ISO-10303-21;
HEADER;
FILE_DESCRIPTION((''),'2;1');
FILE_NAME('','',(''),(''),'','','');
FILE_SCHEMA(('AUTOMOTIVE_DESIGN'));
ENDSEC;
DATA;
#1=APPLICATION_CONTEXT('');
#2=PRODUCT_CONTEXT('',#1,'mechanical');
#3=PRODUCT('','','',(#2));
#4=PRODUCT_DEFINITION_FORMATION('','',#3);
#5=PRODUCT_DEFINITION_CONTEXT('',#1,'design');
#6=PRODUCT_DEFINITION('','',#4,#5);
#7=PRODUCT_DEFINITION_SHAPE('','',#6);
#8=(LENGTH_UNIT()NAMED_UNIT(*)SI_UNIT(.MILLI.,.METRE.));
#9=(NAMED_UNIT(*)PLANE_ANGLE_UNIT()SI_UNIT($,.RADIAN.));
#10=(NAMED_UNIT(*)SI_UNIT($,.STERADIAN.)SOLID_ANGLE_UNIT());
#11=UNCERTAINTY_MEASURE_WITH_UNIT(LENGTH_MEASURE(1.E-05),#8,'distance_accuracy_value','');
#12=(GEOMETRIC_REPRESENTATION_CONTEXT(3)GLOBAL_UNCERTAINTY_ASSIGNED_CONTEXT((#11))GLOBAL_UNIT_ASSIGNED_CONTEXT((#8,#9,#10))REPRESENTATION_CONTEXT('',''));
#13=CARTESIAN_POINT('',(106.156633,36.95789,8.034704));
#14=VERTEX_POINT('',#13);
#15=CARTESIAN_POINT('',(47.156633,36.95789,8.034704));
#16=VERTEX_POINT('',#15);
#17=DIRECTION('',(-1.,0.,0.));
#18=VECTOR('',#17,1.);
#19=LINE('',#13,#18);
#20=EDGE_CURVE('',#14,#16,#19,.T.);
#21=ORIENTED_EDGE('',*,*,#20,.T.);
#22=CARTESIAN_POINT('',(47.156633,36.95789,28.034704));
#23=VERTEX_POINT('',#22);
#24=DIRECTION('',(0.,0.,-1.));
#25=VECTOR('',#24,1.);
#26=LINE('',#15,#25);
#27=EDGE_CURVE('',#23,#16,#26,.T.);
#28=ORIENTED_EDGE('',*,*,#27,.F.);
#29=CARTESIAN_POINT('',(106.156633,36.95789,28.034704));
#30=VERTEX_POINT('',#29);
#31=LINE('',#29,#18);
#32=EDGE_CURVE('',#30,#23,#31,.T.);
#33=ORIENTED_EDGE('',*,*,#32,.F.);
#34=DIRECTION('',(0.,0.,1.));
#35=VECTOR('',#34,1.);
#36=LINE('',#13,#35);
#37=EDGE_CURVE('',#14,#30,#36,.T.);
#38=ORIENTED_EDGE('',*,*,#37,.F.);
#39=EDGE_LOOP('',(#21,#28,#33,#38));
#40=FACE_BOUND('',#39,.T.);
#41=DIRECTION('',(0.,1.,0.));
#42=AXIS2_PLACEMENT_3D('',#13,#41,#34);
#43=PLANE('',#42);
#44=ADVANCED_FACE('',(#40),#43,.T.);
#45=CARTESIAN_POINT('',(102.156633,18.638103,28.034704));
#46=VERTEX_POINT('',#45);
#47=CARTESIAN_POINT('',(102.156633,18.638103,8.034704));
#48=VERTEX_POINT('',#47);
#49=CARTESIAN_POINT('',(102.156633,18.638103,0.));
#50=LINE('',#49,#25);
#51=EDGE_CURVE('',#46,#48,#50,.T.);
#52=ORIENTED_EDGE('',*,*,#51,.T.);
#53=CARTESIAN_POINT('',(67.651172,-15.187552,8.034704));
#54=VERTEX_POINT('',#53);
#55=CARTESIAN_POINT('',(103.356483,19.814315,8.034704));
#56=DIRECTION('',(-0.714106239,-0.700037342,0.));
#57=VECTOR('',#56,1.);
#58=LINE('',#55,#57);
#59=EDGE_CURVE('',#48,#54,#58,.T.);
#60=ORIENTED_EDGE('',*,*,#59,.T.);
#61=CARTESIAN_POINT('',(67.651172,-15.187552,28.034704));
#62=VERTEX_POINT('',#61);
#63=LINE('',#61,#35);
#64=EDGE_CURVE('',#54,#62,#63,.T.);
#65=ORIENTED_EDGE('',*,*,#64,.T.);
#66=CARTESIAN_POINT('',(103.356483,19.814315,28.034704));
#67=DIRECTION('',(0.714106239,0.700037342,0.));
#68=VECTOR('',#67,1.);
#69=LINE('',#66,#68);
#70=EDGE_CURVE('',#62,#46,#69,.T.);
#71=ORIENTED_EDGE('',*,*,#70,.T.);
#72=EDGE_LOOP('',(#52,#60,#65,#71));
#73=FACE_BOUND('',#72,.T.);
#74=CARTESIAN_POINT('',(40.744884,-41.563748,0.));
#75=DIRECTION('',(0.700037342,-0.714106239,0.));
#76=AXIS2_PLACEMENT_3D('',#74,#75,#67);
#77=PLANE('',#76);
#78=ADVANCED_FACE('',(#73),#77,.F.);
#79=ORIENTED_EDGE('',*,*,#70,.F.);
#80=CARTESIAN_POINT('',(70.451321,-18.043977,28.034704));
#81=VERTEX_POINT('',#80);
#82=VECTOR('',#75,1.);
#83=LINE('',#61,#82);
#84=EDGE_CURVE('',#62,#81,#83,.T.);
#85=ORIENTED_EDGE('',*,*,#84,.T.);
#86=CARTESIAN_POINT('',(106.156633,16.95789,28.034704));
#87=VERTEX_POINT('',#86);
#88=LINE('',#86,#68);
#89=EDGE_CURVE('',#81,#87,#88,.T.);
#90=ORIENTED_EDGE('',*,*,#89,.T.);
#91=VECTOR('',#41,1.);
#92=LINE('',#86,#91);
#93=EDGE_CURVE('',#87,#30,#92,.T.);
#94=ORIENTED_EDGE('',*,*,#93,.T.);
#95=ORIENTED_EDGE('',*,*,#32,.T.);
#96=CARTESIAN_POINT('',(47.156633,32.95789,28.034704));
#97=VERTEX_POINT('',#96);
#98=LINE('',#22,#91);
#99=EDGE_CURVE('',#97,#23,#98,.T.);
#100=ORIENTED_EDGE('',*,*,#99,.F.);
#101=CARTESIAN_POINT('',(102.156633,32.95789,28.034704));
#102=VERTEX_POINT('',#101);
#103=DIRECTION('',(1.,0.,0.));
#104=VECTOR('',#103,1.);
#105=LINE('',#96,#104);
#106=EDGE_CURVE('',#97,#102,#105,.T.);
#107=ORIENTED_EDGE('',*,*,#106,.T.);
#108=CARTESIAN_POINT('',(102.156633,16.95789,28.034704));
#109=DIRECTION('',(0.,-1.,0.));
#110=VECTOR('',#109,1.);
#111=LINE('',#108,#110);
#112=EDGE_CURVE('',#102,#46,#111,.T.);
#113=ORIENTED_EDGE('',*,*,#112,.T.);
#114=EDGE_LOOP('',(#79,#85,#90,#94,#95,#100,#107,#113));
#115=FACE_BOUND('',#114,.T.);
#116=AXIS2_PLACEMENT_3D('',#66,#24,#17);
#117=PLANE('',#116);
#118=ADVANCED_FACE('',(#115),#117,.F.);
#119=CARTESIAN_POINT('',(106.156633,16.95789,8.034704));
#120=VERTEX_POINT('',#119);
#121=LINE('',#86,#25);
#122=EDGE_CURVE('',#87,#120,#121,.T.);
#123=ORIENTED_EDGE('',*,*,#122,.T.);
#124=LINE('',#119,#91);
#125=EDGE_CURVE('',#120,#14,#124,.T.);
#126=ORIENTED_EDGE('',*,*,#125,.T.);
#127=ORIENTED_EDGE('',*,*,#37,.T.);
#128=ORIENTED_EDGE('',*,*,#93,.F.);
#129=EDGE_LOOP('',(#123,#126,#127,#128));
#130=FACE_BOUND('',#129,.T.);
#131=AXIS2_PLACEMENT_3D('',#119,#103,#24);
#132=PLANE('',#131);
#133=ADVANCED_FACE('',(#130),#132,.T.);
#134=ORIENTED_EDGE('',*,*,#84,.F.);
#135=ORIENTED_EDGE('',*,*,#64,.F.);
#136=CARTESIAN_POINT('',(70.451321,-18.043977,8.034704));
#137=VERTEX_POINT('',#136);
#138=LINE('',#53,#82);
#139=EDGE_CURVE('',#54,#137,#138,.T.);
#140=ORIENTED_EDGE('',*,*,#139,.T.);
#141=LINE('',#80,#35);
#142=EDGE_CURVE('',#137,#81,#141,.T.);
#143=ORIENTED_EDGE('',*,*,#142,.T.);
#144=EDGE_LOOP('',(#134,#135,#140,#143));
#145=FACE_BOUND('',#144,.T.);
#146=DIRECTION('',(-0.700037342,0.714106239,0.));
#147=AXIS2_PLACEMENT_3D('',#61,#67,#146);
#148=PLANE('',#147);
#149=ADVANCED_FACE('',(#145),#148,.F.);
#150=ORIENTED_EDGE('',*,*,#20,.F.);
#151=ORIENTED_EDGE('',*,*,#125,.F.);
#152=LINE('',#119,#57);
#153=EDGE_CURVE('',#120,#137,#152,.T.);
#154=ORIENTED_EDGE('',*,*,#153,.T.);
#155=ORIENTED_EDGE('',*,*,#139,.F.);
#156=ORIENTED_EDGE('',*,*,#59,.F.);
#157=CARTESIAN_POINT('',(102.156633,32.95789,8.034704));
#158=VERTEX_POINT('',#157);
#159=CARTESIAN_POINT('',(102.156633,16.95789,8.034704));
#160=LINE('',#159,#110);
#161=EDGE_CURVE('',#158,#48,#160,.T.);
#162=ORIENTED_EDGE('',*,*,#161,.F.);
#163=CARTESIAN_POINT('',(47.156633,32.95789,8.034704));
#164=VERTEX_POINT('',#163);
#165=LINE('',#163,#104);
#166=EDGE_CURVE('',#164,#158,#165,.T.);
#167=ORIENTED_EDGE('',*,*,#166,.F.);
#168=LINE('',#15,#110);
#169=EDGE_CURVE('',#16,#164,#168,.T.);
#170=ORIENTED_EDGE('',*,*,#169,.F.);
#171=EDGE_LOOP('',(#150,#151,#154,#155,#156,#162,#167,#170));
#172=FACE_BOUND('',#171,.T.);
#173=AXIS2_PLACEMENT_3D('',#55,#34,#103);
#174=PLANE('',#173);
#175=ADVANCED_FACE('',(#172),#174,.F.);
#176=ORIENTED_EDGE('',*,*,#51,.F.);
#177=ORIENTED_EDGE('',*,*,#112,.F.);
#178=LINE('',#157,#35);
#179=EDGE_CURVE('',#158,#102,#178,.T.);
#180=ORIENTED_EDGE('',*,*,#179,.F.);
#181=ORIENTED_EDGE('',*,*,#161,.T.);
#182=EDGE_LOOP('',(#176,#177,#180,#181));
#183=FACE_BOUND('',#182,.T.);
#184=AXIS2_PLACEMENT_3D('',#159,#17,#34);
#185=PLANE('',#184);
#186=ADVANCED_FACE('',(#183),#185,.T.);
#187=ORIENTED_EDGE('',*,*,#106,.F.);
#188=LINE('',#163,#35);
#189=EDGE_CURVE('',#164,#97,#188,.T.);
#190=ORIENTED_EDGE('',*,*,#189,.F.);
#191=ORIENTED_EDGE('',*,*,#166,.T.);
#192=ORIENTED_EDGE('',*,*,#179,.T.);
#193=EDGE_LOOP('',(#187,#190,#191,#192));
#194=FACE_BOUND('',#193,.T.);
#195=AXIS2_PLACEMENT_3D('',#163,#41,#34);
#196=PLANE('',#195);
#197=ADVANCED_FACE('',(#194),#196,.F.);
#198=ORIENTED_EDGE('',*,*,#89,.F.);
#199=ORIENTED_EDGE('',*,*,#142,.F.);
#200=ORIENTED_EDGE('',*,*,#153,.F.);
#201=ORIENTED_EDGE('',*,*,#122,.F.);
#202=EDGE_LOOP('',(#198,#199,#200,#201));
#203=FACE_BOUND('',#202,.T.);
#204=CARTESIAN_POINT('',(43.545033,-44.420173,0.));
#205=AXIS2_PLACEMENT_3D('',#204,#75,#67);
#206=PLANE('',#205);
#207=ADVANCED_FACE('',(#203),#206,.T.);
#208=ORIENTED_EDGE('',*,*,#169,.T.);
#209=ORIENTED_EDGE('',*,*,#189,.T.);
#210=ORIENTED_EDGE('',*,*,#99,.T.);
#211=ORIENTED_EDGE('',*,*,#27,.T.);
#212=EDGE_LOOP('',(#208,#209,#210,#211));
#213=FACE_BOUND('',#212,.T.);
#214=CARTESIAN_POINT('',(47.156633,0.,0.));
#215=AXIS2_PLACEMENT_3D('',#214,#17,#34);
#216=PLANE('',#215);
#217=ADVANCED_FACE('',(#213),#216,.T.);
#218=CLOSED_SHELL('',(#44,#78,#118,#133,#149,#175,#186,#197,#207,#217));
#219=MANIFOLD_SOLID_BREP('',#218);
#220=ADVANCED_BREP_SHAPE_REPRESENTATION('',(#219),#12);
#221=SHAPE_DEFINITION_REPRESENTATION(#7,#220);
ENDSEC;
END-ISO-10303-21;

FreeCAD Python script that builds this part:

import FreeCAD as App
import Part
import Sketcher
from FreeCAD import Vector


def add_polygon(sketch, points):
    """Adds a closed chain of lines whose ends are joined by coincident constraints."""
    first, n = sketch.GeometryCount, len(points)
    for a, b in zip(points, points[1:] + points[:1]):
        sketch.addGeometry(Part.LineSegment(App.Vector(*a, 0), App.Vector(*b, 0)), False)
    for i in range(n):
        sketch.addConstraint(Sketcher.Constraint("Coincident", first + i, 2, first + (i + 1) % n, 1))

doc = App.newDocument("Part")
body = doc.addObject("PartDesign::Body", "Body")

sketch1 = doc.addObject("Sketcher::SketchObject", "Sketch")
body.addObject(sketch1)
sketch1.Placement = App.Placement(Vector(43.545033, -44.420173, 0), App.Rotation(Vector(0, 0, 1), Vector(0.714106239, 0.700037342, 0), Vector(-0.700037342, 0.714106239, 0), "ZXY"))
add_polygon(sketch1, [(8, 88), (8, 38), (28, 38), (28, 88)])
sketch1.addConstraint(Sketcher.Constraint("Vertical", 0))
sketch1.addConstraint(Sketcher.Constraint("Horizontal", 1))
sketch1.addConstraint(Sketcher.Constraint("Vertical", 2))
sketch1.addConstraint(Sketcher.Constraint("Horizontal", 3))
sketch1.addConstraint(Sketcher.Constraint("DistanceX", 1, 1, 1, 2, 20.0))
sketch1.addConstraint(Sketcher.Constraint("DistanceY", 0, 2, 0, 1, 50.0))
sketch1.addConstraint(Sketcher.Constraint("DistanceY", -1, 1, 0, 2, 37.67827))
sketch1.addConstraint(Sketcher.Constraint("DistanceX", -1, 1, 0, 2, 8.034704))
pad1 = doc.addObject("PartDesign::Pad", "Pad")
body.addObject(pad1)
pad1.Profile = sketch1
pad1.Length = 4

sketch2 = doc.addObject("Sketcher::SketchObject", "Sketch001")
body.addObject(sketch2)
sketch2.AttachmentSupport = (doc.XY_Plane, [""])
sketch2.MapMode = "FlatFace"
sketch2.AttachmentOffset = App.Placement(Vector(0, 0, 28.034704), App.Rotation())
add_polygon(sketch2, [(102.2, 37), (102.2, 17), (106.2, 17), (106.2, 37)])
sketch2.addConstraint(Sketcher.Constraint("Vertical", 0))
sketch2.addConstraint(Sketcher.Constraint("Horizontal", 1))
sketch2.addConstraint(Sketcher.Constraint("Vertical", 2))
sketch2.addConstraint(Sketcher.Constraint("Horizontal", 3))
sketch2.addConstraint(Sketcher.Constraint("DistanceX", 1, 1, 1, 2, 4.0))
sketch2.addConstraint(Sketcher.Constraint("DistanceY", 0, 2, 0, 1, 20.0))
sketch2.addConstraint(Sketcher.Constraint("DistanceY", -1, 1, 0, 2, 16.95789))
sketch2.addConstraint(Sketcher.Constraint("DistanceX", -1, 1, 0, 2, 102.156633))
pad2 = doc.addObject("PartDesign::Pad", "Pad001")
body.addObject(pad2)
pad2.Profile = sketch2
pad2.Length = 20
pad2.Reversed = True

sketch3 = doc.addObject("Sketcher::SketchObject", "Sketch002")
body.addObject(sketch3)
sketch3.AttachmentSupport = (doc.YZ_Plane, [""])
sketch3.MapMode = "FlatFace"
sketch3.AttachmentOffset = App.Placement(Vector(0, 0, 102.156633), App.Rotation())
add_polygon(sketch3, [(37, 8), (33, 8), (33, 28), (37, 28)])
sketch3.addConstraint(Sketcher.Constraint("Horizontal", 0))
sketch3.addConstraint(Sketcher.Constraint("Vertical", 1))
sketch3.addConstraint(Sketcher.Constraint("Horizontal", 2))
sketch3.addConstraint(Sketcher.Constraint("Vertical", 3))
sketch3.addConstraint(Sketcher.Constraint("DistanceX", 0, 2, 0, 1, 4.0))
sketch3.addConstraint(Sketcher.Constraint("DistanceY", 1, 1, 1, 2, 20.0))
sketch3.addConstraint(Sketcher.Constraint("DistanceX", -1, 1, 0, 2, 32.95789))
sketch3.addConstraint(Sketcher.Constraint("DistanceY", -1, 1, 0, 2, 8.034704))
pad3 = doc.addObject("PartDesign::Pad", "Pad002")
body.addObject(pad3)
pad3.Profile = sketch3
pad3.Length = 55
pad3.Reversed = True

doc.recompute()
